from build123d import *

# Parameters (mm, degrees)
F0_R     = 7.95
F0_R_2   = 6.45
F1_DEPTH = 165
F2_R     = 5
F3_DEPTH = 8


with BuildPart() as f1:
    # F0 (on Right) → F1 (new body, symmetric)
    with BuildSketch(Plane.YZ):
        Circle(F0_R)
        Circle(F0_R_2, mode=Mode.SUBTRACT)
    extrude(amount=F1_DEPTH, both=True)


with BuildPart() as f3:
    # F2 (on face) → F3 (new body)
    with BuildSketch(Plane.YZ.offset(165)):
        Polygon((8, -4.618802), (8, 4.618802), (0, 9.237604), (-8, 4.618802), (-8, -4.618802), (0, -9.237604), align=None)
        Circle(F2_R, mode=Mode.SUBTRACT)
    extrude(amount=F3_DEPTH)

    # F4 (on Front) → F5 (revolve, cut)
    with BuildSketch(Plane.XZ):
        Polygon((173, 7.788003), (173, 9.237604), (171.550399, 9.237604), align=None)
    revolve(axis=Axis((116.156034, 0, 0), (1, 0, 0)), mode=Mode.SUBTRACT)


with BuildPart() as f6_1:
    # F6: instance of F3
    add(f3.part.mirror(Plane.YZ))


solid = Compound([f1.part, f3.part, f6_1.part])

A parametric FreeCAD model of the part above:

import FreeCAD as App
import Part
import Sketcher
from FreeCAD import Vector
Q = App.Units.Quantity


def add_polygon(sketch, points):
    """Adds a closed chain of lines whose ends are joined by coincident constraints."""
    first, n = sketch.GeometryCount, len(points)
    for a, b in zip(points, points[1:] + points[:1]):
        sketch.addGeometry(Part.LineSegment(App.Vector(*a, 0), App.Vector(*b, 0)), False)
    for i in range(n):
        sketch.addConstraint(Sketcher.Constraint("Coincident", first + i, 2, first + (i + 1) % n, 1))

doc = App.newDocument("Part")
params = doc.addObject("Spreadsheet::Sheet", "Params")
for row, (alias, value) in enumerate([
    ("sketch1_diameter", "15.9 mm"),
    ("sketch1_diameter2", "12.9 mm"),
    ("pad1_length", "330 mm"),
    ("sketch2_diameter", "10 mm"),
    ("pad2_length", "8 mm"),
    ("groove_angle", "360 deg"),
], start=1):
    params.set(f"A{row}", alias)
    params.set(f"B{row}", "=" + value)
    params.setAlias(f"B{row}", alias)

body = doc.addObject("PartDesign::Body", "Body")

# Sketch on YZ plane
sketch1 = body.newObject("Sketcher::SketchObject", "Sketch")
sketch1.AttachmentSupport = (doc.getObject("YZ_Plane"), [""])
sketch1.MapMode = "FlatFace"
sketch1.addGeometry([
    Part.Circle(Vector(0, 0, 0), Vector(0, 0, 1), 8),
    Part.Circle(Vector(0, 0, 0), Vector(0, 0, 1), 6),
], False)
sketch1.addConstraint([
    Sketcher.Constraint("Coincident", 0, 3, -1, 1),
    Sketcher.Constraint("Coincident", 1, 3, -1, 1),
    Sketcher.Constraint("Diameter", 0, Q("15.9 mm")),
    Sketcher.Constraint("Diameter", 1, Q("12.9 mm")),
])
sketch1.setExpression("Constraints[2]", "Params.sketch1_diameter")
sketch1.setExpression("Constraints[3]", "Params.sketch1_diameter2")
pad1 = body.newObject("PartDesign::Pad", "Pad")
pad1.Profile = sketch1
pad1.setExpression("Length", "Params.pad1_length")
pad1.Midplane = True
body2 = doc.addObject("PartDesign::Body", "Body001")

# Sketch on YZ plane
sketch2 = body2.newObject("Sketcher::SketchObject", "Sketch001")
sketch2.AttachmentSupport = (doc.getObject("YZ_Plane001"), [""])
sketch2.MapMode = "FlatFace"
sketch2.AttachmentOffset = App.Placement(Vector(0, 0, 165), App.Rotation())
add_polygon(sketch2, [(8, -5), (8, 5), (0, 9), (-8, 5), (-8, -5), (0, -9)])  # lines 0-5
sketch2.addGeometry(Part.Circle(Vector(0, 0, 0), Vector(0, 0, 1), 5), False)  # 6
sketch2.addConstraint([
    Sketcher.Constraint("Vertical", 0),
    Sketcher.Constraint("Vertical", 3),
    Sketcher.Constraint("Coincident", 6, 3, -1, 1),
    Sketcher.Constraint("Symmetric", 0, 2, 3, 2, -1, 1),
    Sketcher.Constraint("Symmetric", 1, 2, 4, 2, -1, 1),
    Sketcher.Constraint("PointOnObject", 1, 2, -2),
    Sketcher.Constraint("Parallel", 2, 5),
    Sketcher.Constraint("Horizontal", 0, 2, 2, 2),
    Sketcher.Constraint("Diameter", 6, Q("10 mm")),
    Sketcher.Constraint("Angle", 1, Q("150.000001 deg")),
    Sketcher.Constraint("DistanceX", -1, 1, 0, 2, Q("8 mm")),
    Sketcher.Constraint("DistanceY", -1, 1, 0, 2, Q("4.618802 mm")),
])
sketch2.setExpression("Constraints[14]", "Params.sketch2_diameter")
pad2 = body2.newObject("PartDesign::Pad", "Pad001")
pad2.Profile = sketch2
pad2.setExpression("Length", "Params.pad2_length")

# Sketch on XZ plane
sketch3 = body2.newObject("Sketcher::SketchObject", "Sketch002")
sketch3.AttachmentSupport = (doc.getObject("XZ_Plane001"), [""])
sketch3.MapMode = "FlatFace"
add_polygon(sketch3, [(173, 7.8), (173, 9.2), (171.6, 9.2)])  # lines 0-2
sketch3.addConstraint([
    Sketcher.Constraint("Vertical", 0),
    Sketcher.Constraint("Horizontal", 1),
    Sketcher.Constraint("Equal", 1, 0),
    Sketcher.Constraint("DistanceX", -1, 1, 0, 2, Q("173 mm")),
    Sketcher.Constraint("DistanceX", 1, 2, 1, 1, Q("1.449601 mm")),
    Sketcher.Constraint("DistanceY", -1, 1, 0, 2, Q("9.237604 mm")),
])
groove = body2.newObject("PartDesign::Groove", "Groove")
groove.Profile = sketch3
groove.ReferenceAxis = (sketch3, ["H_Axis"])
groove.setExpression("Angle", "Params.groove_angle")
body3 = doc.addObject("PartDesign::Body", "Body002")
doc.recompute()

mirroring = doc.addObject("Part::Mirroring", "Mirroring")
mirroring.Source = body2
mirroring.Base = Vector(0, 0, 0)
mirroring.Normal = Vector(1, 0, 0)
body3.BaseFeature = mirroring
doc.recompute()
mirroring.Visibility = False

doc.recompute()
